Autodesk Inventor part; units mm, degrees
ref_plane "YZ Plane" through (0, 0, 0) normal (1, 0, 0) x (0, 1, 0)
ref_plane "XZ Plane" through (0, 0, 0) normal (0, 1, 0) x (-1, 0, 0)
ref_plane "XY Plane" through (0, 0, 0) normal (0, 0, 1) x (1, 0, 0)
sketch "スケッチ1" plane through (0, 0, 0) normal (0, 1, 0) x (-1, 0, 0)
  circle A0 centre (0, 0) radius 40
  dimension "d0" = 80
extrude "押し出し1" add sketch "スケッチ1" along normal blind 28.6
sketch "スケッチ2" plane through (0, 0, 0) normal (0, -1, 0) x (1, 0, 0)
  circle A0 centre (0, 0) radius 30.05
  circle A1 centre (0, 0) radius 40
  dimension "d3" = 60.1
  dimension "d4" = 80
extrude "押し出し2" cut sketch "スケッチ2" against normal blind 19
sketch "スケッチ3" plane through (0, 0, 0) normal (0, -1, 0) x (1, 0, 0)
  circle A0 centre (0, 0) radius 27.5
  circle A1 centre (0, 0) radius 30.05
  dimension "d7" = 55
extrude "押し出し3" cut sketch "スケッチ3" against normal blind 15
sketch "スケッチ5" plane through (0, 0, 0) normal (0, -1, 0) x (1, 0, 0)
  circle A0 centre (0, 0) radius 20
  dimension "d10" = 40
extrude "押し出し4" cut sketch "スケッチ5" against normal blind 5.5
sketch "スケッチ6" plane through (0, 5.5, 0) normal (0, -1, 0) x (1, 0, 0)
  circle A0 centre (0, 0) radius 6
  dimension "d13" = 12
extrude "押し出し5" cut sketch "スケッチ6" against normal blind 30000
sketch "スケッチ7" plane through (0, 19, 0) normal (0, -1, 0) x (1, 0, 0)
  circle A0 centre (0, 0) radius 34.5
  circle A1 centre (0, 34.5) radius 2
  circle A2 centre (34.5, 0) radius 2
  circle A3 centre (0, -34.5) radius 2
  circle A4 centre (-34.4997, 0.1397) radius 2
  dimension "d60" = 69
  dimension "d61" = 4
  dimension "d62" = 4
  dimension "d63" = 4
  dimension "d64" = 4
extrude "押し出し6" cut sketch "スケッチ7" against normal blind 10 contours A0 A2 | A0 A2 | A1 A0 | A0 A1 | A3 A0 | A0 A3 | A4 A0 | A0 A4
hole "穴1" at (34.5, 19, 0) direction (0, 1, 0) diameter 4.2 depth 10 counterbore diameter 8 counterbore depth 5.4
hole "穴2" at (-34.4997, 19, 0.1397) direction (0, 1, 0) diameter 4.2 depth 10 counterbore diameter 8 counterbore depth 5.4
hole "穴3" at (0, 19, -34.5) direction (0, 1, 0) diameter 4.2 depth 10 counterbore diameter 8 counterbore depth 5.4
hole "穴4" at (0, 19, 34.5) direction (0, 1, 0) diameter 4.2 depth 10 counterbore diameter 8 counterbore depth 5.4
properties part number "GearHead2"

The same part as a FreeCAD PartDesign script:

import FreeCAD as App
import Part
import Sketcher
Q = App.Units.Quantity

doc = App.newDocument("Part")
params = doc.addObject("Spreadsheet::Sheet", "Params")
for row, (alias, value) in enumerate([
    ("sketch1_diameter", "80 mm"),
    ("pad1_length", "28.6 mm"),
    ("sketch2_diameter", "80 mm"),
    ("sketch2_diameter2", "60.1 mm"),
    ("pocket1_length", "19 mm"),
    ("sketch3_diameter", "55 mm"),
    ("sketch3_diameter2", "60.1 mm"),
    ("pocket2_length", "15 mm"),
    ("sketch4_diameter", "40 mm"),
    ("pocket3_length", "5.5 mm"),
    ("sketch5_diameter", "12 mm"),
    ("pocket4_length", "30000 mm"),
    ("sketch6_diameter", "4 mm"),
    ("pocket5_length", "10 mm"),
    ("sketch7_diameter", "4.2 mm"),
    ("hole_diameter", "4.2 mm"),
    ("hole_depth", "10 mm"),
    ("hole_cbore_diameter", "8 mm"),
    ("hole_cbore_depth", "5.4 mm"),
    ("sketch8_diameter", "4.2 mm"),
    ("hole2_diameter", "4.2 mm"),
    ("hole2_depth", "10 mm"),
    ("hole2_cbore_diameter", "8 mm"),
    ("hole2_cbore_depth", "5.4 mm"),
    ("sketch9_diameter", "4.2 mm"),
    ("hole3_diameter", "4.2 mm"),
    ("hole3_depth", "10 mm"),
    ("hole3_cbore_diameter", "8 mm"),
    ("hole3_cbore_depth", "5.4 mm"),
    ("sketch10_diameter", "4.2 mm"),
    ("hole4_diameter", "4.2 mm"),
    ("hole4_depth", "10 mm"),
    ("hole4_cbore_diameter", "8 mm"),
    ("hole4_cbore_depth", "5.4 mm"),
], start=1):
    params.set(f"A{row}", alias)
    params.set(f"B{row}", "=" + value)
    params.setAlias(f"B{row}", alias)

body = doc.addObject("PartDesign::Body", "Body")

sketch1 = body.newObject("Sketcher::SketchObject", "Sketch")
sketch1.AttachmentSupport = (doc.getObject("XZ_Plane"), [""])
sketch1.MapMode = "FlatFace"
sketch1.addGeometry(Part.Circle(App.Vector(0, 0, 0), App.Vector(0, 0, 1), 40), False)
sketch1.addConstraint(Sketcher.Constraint("Coincident", 0, 3, -1, 1))
sketch1.addConstraint(Sketcher.Constraint("Diameter", 0, Q("80 mm")))
sketch1.setExpression("Constraints[1]", "Params.sketch1_diameter")
pad1 = body.newObject("PartDesign::Pad", "Pad")
pad1.Profile = sketch1
pad1.setExpression("Length", "Params.pad1_length")
pad1.Reversed = True

sketch2 = body.newObject("Sketcher::SketchObject", "Sketch001")
sketch2.AttachmentSupport = (doc.getObject("XZ_Plane"), [""])
sketch2.MapMode = "FlatFace"
sketch2.addGeometry(Part.Circle(App.Vector(0, 0, 0), App.Vector(0, 0, 1), 40), False)
sketch2.addGeometry(Part.Circle(App.Vector(0, 0, 0), App.Vector(0, 0, 1), 30), False)
sketch2.addConstraint(Sketcher.Constraint("Coincident", 0, 3, -1, 1))
sketch2.addConstraint(Sketcher.Constraint("Coincident", 1, 3, -1, 1))
sketch2.addConstraint(Sketcher.Constraint("Diameter", 0, Q("80 mm")))
sketch2.addConstraint(Sketcher.Constraint("Diameter", 1, Q("60.1 mm")))
sketch2.setExpression("Constraints[2]", "Params.sketch2_diameter")
sketch2.setExpression("Constraints[3]", "Params.sketch2_diameter2")
pocket1 = body.newObject("PartDesign::Pocket", "Pocket")
pocket1.Profile = sketch2
pocket1.setExpression("Length", "Params.pocket1_length")

sketch3 = body.newObject("Sketcher::SketchObject", "Sketch002")
sketch3.AttachmentSupport = (doc.getObject("XZ_Plane"), [""])
sketch3.MapMode = "FlatFace"
sketch3.addGeometry(Part.Circle(App.Vector(0, 0, 0), App.Vector(0, 0, 1), 30), False)
sketch3.addGeometry(Part.Circle(App.Vector(0, 0, 0), App.Vector(0, 0, 1), 28), False)
sketch3.addConstraint(Sketcher.Constraint("Coincident", 0, 3, -1, 1))
sketch3.addConstraint(Sketcher.Constraint("Coincident", 1, 3, -1, 1))
sketch3.addConstraint(Sketcher.Constraint("Diameter", 1, Q("55 mm")))
sketch3.addConstraint(Sketcher.Constraint("Diameter", 0, Q("60.1 mm")))
sketch3.setExpression("Constraints[2]", "Params.sketch3_diameter")
sketch3.setExpression("Constraints[3]", "Params.sketch3_diameter2")
pocket2 = body.newObject("PartDesign::Pocket", "Pocket001")
pocket2.Profile = sketch3
pocket2.setExpression("Length", "Params.pocket2_length")

sketch4 = body.newObject("Sketcher::SketchObject", "Sketch003")
sketch4.AttachmentSupport = (doc.getObject("XZ_Plane"), [""])
sketch4.MapMode = "FlatFace"
sketch4.addGeometry(Part.Circle(App.Vector(0, 0, 0), App.Vector(0, 0, 1), 20), False)
sketch4.addConstraint(Sketcher.Constraint("Coincident", 0, 3, -1, 1))
sketch4.addConstraint(Sketcher.Constraint("Diameter", 0, Q("40 mm")))
sketch4.setExpression("Constraints[1]", "Params.sketch4_diameter")
pocket3 = body.newObject("PartDesign::Pocket", "Pocket002")
pocket3.Profile = sketch4
pocket3.setExpression("Length", "Params.pocket3_length")

sketch5 = body.newObject("Sketcher::SketchObject", "Sketch004")
sketch5.AttachmentSupport = (doc.getObject("XZ_Plane"), [""])
sketch5.MapMode = "FlatFace"
sketch5.AttachmentOffset = App.Placement(App.Vector(0, 0, -5.5), App.Rotation())
sketch5.addGeometry(Part.Circle(App.Vector(0, 0, 0), App.Vector(0, 0, 1), 6), False)
sketch5.addConstraint(Sketcher.Constraint("Coincident", 0, 3, -1, 1))
sketch5.addConstraint(Sketcher.Constraint("Diameter", 0, Q("12 mm")))
sketch5.setExpression("Constraints[1]", "Params.sketch5_diameter")
pocket4 = body.newObject("PartDesign::Pocket", "Pocket003")
pocket4.Profile = sketch5
pocket4.setExpression("Length", "Params.pocket4_length")

sketch6 = body.newObject("Sketcher::SketchObject", "Sketch005")
sketch6.AttachmentSupport = (doc.getObject("XZ_Plane"), [""])
sketch6.MapMode = "FlatFace"
sketch6.AttachmentOffset = App.Placement(App.Vector(0, 0, -19), App.Rotation())
sketch6.addGeometry(Part.Circle(App.Vector(34.5, 0, 0), App.Vector(0, 0, 1), 2), False)
sketch6.addGeometry(Part.Circle(App.Vector(0, 34.5, 0), App.Vector(0, 0, 1), 2), False)
sketch6.addGeometry(Part.Circle(App.Vector(0, -34.5, 0), App.Vector(0, 0, 1), 2), False)
sketch6.addGeometry(Part.Circle(App.Vector(-34.5, 0.1, 0), App.Vector(0, 0, 1), 2), False)
sketch6.addConstraint(Sketcher.Constraint("Equal", 0, 1))
sketch6.addConstraint(Sketcher.Constraint("Equal", 1, 2))
sketch6.addConstraint(Sketcher.Constraint("Equal", 2, 3))
sketch6.addConstraint(Sketcher.Constraint("Symmetric", 1, 3, 2, 3, -1, 1))
sketch6.addConstraint(Sketcher.Constraint("PointOnObject", 0, 3, -1))
sketch6.addConstraint(Sketcher.Constraint("PointOnObject", 1, 3, -2))
sketch6.addConstraint(Sketcher.Constraint("Diameter", 0, Q("4 mm")))
sketch6.addConstraint(Sketcher.Constraint("DistanceY", 2, 3, 1, 3, Q("69 mm")))
sketch6.addConstraint(Sketcher.Constraint("DistanceX", -1, 1, 0, 3, Q("34.5 mm")))
sketch6.addConstraint(Sketcher.Constraint("DistanceX", 3, 3, 0, 3, Q("68.9997 mm")))
sketch6.addConstraint(Sketcher.Constraint("DistanceY", -1, 1, 3, 3, Q("0.1397 mm")))
sketch6.setExpression("Constraints[6]", "Params.sketch6_diameter")
pocket5 = body.newObject("PartDesign::Pocket", "Pocket004")
pocket5.Profile = sketch6
pocket5.setExpression("Length", "Params.pocket5_length")

sketch7 = body.newObject("Sketcher::SketchObject", "Sketch006")
sketch7.AttachmentSupport = (doc.getObject("XZ_Plane"), [""])
sketch7.MapMode = "FlatFace"
sketch7.AttachmentOffset = App.Placement(App.Vector(0, 0, -19), App.Rotation())
sketch7.addGeometry(Part.Circle(App.Vector(34.5, 0, 0), App.Vector(0, 0, 1), 2.1), False)
sketch7.addConstraint(Sketcher.Constraint("PointOnObject", 0, 3, -1))
sketch7.addConstraint(Sketcher.Constraint("Diameter", 0, Q("4.2 mm")))
sketch7.addConstraint(Sketcher.Constraint("DistanceX", -1, 1, 0, 3, Q("34.5 mm")))
sketch7.setExpression("Constraints[1]", "Params.sketch7_diameter")
doc.recompute()
hole = body.newObject("PartDesign::Hole", "Hole")
hole.Profile = sketch7
hole.ThreadType = "None"
hole.setExpression("Diameter", "Params.hole_diameter")
hole.DepthType = "Dimension"
hole.setExpression("Depth", "Params.hole_depth")
hole.DrillPoint = "Flat"
hole.HoleCutType = "Counterbore"
hole.setExpression("HoleCutDiameter", "Params.hole_cbore_diameter")
hole.setExpression("HoleCutDepth", "Params.hole_cbore_depth")

sketch8 = body.newObject("Sketcher::SketchObject", "Sketch007")
sketch8.AttachmentSupport = (doc.getObject("XZ_Plane"), [""])
sketch8.MapMode = "FlatFace"
sketch8.AttachmentOffset = App.Placement(App.Vector(0, 0, -19), App.Rotation())
sketch8.addGeometry(Part.Circle(App.Vector(-34.5, 0.1, 0), App.Vector(0, 0, 1), 2.1), False)
sketch8.addConstraint(Sketcher.Constraint("Diameter", 0, Q("4.2 mm")))
sketch8.addConstraint(Sketcher.Constraint("DistanceX", 0, 3, -1, 1, Q("34.4997 mm")))
sketch8.addConstraint(Sketcher.Constraint("DistanceY", -1, 1, 0, 3, Q("0.1397 mm")))
sketch8.setExpression("Constraints[0]", "Params.sketch8_diameter")
doc.recompute()
hole2 = body.newObject("PartDesign::Hole", "Hole001")
hole2.Profile = sketch8
hole2.ThreadType = "None"
hole2.setExpression("Diameter", "Params.hole2_diameter")
hole2.DepthType = "Dimension"
hole2.setExpression("Depth", "Params.hole2_depth")
hole2.DrillPoint = "Flat"
hole2.HoleCutType = "Counterbore"
hole2.setExpression("HoleCutDiameter", "Params.hole2_cbore_diameter")
hole2.setExpression("HoleCutDepth", "Params.hole2_cbore_depth")

sketch9 = body.newObject("Sketcher::SketchObject", "Sketch008")
sketch9.AttachmentSupport = (doc.getObject("XZ_Plane"), [""])
sketch9.MapMode = "FlatFace"
sketch9.AttachmentOffset = App.Placement(App.Vector(0, 0, -19), App.Rotation())
sketch9.addGeometry(Part.Circle(App.Vector(0, -34.5, 0), App.Vector(0, 0, 1), 2.1), False)
sketch9.addConstraint(Sketcher.Constraint("PointOnObject", 0, 3, -2))
sketch9.addConstraint(Sketcher.Constraint("Diameter", 0, Q("4.2 mm")))
sketch9.addConstraint(Sketcher.Constraint("DistanceY", 0, 3, -1, 1, Q("34.5 mm")))
sketch9.setExpression("Constraints[1]", "Params.sketch9_diameter")
doc.recompute()
hole3 = body.newObject("PartDesign::Hole", "Hole002")
hole3.Profile = sketch9
hole3.ThreadType = "None"
hole3.setExpression("Diameter", "Params.hole3_diameter")
hole3.DepthType = "Dimension"
hole3.setExpression("Depth", "Params.hole3_depth")
hole3.DrillPoint = "Flat"
hole3.HoleCutType = "Counterbore"
hole3.setExpression("HoleCutDiameter", "Params.hole3_cbore_diameter")
hole3.setExpression("HoleCutDepth", "Params.hole3_cbore_depth")

sketch10 = body.newObject("Sketcher::SketchObject", "Sketch009")
sketch10.AttachmentSupport = (doc.getObject("XZ_Plane"), [""])
sketch10.MapMode = "FlatFace"
sketch10.AttachmentOffset = App.Placement(App.Vector(0, 0, -19), App.Rotation())
sketch10.addGeometry(Part.Circle(App.Vector(0, 34.5, 0), App.Vector(0, 0, 1), 2.1), False)
sketch10.addConstraint(Sketcher.Constraint("PointOnObject", 0, 3, -2))
sketch10.addConstraint(Sketcher.Constraint("Diameter", 0, Q("4.2 mm")))
sketch10.addConstraint(Sketcher.Constraint("DistanceY", -1, 1, 0, 3, Q("34.5 mm")))
sketch10.setExpression("Constraints[1]", "Params.sketch10_diameter")
doc.recompute()
hole4 = body.newObject("PartDesign::Hole", "Hole003")
hole4.Profile = sketch10
hole4.ThreadType = "None"
hole4.setExpression("Diameter", "Params.hole4_diameter")
hole4.DepthType = "Dimension"
hole4.setExpression("Depth", "Params.hole4_depth")
hole4.DrillPoint = "Flat"
hole4.HoleCutType = "Counterbore"
hole4.setExpression("HoleCutDiameter", "Params.hole4_cbore_diameter")
hole4.setExpression("HoleCutDepth", "Params.hole4_cbore_depth")

doc.recompute()
